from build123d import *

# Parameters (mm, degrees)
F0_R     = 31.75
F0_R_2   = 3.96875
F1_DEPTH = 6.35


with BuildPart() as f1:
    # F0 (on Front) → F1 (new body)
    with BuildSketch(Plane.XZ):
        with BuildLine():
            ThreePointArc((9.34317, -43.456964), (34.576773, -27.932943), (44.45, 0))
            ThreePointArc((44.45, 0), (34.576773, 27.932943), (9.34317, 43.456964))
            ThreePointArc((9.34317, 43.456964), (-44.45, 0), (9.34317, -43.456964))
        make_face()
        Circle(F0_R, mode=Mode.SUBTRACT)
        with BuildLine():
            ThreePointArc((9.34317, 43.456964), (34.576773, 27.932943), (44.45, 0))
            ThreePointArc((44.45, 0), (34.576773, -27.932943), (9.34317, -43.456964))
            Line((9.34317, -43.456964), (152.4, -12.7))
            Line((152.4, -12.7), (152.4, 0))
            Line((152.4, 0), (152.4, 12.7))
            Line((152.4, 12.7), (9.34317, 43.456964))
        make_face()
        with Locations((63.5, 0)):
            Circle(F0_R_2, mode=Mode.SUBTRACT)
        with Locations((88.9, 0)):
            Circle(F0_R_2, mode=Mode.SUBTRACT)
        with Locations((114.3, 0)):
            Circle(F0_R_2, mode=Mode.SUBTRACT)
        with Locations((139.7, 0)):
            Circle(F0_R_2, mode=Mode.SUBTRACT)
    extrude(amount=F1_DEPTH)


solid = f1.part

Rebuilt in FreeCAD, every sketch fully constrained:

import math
import FreeCAD as App
import Part
import Sketcher
from FreeCAD import Vector
Q = App.Units.Quantity

doc = App.newDocument("Part")
params = doc.addObject("Spreadsheet::Sheet", "Params")
for row, (alias, value) in enumerate([
    ("sketch1_diameter", "2.5 in"),
    ("sketch1_height", "1 in"),
    ("sketch1_radius", "1.75 in"),
    ("sketch1_diameter2", "0.3125 in"),
    ("pad1_length", "0.25 in"),
], start=1):
    params.set(f"A{row}", alias)
    params.set(f"B{row}", "=" + value)
    params.setAlias(f"B{row}", alias)

body = doc.addObject("PartDesign::Body", "Body")

sketch1 = doc.addObject("Sketcher::SketchObject", "Sketch")
body.addObject(sketch1)
sketch1.AttachmentSupport = (doc.XZ_Plane, [""])
sketch1.MapMode = "FlatFace"
sketch1.addGeometry([
    Part.ArcOfCircle(Part.Circle(Vector(0, 0, 0), Vector(0, 0, 1), 44.5), math.radians(78), math.radians(282)),
    Part.LineSegment(Vector(9.3, -43.5, 0), Vector(152.4, -12.7, 0)),
    Part.LineSegment(Vector(152.4, -12.7, 0), Vector(152.4, 12.7, 0)),
    Part.LineSegment(Vector(152.4, 12.7, 0), Vector(9.3, 43.5, 0)),
    Part.Circle(Vector(0, 0, 0), Vector(0, 0, 1), 31.8),
    Part.Circle(Vector(63.5, 0, 0), Vector(0, 0, 1), 4),
    Part.Circle(Vector(88.9, 0, 0), Vector(0, 0, 1), 4),
    Part.Circle(Vector(114.3, 0, 0), Vector(0, 0, 1), 4),
    Part.Circle(Vector(139.7, 0, 0), Vector(0, 0, 1), 4),
], False)
sketch1.addConstraint([
    Sketcher.Constraint("Tangent", 0, 2, 1, 1),
    Sketcher.Constraint("Coincident", 1, 2, 2, 1),
    Sketcher.Constraint("Coincident", 2, 2, 3, 1),
    Sketcher.Constraint("Tangent", 3, 2, 0, 1),
    Sketcher.Constraint("Vertical", 2),
    Sketcher.Constraint("Coincident", 0, 3, -1, 1),
    Sketcher.Constraint("Coincident", 4, 3, -1, 1),
    Sketcher.Constraint("Equal", 5, 6),
    Sketcher.Constraint("Equal", 6, 7),
    Sketcher.Constraint("Equal", 7, 8),
    Sketcher.Constraint("PointOnObject", 5, 3, -1),
    Sketcher.Constraint("PointOnObject", 6, 3, -1),
    Sketcher.Constraint("PointOnObject", 7, 3, -1),
    Sketcher.Constraint("PointOnObject", 8, 3, -1),
    Sketcher.Constraint("Vertical", 0, 2, 3, 2),
    Sketcher.Constraint("Diameter", 4, Q("2.5 in")),
    Sketcher.Constraint("DistanceY", 2, 1, 2, 2, Q("1 in")),
    Sketcher.Constraint("Radius", 0, Q("1.75 in")),
    Sketcher.Constraint("Diameter", 5, Q("0.3125 in")),
    Sketcher.Constraint("DistanceX", -1, 1, 1, 2, Q("6 in")),
    Sketcher.Constraint("DistanceX", 5, 3, 6, 3, Q("1 in")),
    Sketcher.Constraint("DistanceX", 6, 3, 7, 3, Q("1 in")),
    Sketcher.Constraint("DistanceX", 7, 3, 8, 3, Q("1 in")),
    Sketcher.Constraint("DistanceX", -1, 1, 5, 3, Q("2.5 in")),
])
sketch1.setExpression("Constraints[15]", "Params.sketch1_diameter")
sketch1.setExpression("Constraints[16]", "Params.sketch1_height")
sketch1.setExpression("Constraints[17]", "Params.sketch1_radius")
sketch1.setExpression("Constraints[18]", "Params.sketch1_diameter2")
pad1 = doc.addObject("PartDesign::Pad", "Pad")
body.addObject(pad1)
pad1.Profile = sketch1
pad1.setExpression("Length", "Params.pad1_length")

doc.recompute()
